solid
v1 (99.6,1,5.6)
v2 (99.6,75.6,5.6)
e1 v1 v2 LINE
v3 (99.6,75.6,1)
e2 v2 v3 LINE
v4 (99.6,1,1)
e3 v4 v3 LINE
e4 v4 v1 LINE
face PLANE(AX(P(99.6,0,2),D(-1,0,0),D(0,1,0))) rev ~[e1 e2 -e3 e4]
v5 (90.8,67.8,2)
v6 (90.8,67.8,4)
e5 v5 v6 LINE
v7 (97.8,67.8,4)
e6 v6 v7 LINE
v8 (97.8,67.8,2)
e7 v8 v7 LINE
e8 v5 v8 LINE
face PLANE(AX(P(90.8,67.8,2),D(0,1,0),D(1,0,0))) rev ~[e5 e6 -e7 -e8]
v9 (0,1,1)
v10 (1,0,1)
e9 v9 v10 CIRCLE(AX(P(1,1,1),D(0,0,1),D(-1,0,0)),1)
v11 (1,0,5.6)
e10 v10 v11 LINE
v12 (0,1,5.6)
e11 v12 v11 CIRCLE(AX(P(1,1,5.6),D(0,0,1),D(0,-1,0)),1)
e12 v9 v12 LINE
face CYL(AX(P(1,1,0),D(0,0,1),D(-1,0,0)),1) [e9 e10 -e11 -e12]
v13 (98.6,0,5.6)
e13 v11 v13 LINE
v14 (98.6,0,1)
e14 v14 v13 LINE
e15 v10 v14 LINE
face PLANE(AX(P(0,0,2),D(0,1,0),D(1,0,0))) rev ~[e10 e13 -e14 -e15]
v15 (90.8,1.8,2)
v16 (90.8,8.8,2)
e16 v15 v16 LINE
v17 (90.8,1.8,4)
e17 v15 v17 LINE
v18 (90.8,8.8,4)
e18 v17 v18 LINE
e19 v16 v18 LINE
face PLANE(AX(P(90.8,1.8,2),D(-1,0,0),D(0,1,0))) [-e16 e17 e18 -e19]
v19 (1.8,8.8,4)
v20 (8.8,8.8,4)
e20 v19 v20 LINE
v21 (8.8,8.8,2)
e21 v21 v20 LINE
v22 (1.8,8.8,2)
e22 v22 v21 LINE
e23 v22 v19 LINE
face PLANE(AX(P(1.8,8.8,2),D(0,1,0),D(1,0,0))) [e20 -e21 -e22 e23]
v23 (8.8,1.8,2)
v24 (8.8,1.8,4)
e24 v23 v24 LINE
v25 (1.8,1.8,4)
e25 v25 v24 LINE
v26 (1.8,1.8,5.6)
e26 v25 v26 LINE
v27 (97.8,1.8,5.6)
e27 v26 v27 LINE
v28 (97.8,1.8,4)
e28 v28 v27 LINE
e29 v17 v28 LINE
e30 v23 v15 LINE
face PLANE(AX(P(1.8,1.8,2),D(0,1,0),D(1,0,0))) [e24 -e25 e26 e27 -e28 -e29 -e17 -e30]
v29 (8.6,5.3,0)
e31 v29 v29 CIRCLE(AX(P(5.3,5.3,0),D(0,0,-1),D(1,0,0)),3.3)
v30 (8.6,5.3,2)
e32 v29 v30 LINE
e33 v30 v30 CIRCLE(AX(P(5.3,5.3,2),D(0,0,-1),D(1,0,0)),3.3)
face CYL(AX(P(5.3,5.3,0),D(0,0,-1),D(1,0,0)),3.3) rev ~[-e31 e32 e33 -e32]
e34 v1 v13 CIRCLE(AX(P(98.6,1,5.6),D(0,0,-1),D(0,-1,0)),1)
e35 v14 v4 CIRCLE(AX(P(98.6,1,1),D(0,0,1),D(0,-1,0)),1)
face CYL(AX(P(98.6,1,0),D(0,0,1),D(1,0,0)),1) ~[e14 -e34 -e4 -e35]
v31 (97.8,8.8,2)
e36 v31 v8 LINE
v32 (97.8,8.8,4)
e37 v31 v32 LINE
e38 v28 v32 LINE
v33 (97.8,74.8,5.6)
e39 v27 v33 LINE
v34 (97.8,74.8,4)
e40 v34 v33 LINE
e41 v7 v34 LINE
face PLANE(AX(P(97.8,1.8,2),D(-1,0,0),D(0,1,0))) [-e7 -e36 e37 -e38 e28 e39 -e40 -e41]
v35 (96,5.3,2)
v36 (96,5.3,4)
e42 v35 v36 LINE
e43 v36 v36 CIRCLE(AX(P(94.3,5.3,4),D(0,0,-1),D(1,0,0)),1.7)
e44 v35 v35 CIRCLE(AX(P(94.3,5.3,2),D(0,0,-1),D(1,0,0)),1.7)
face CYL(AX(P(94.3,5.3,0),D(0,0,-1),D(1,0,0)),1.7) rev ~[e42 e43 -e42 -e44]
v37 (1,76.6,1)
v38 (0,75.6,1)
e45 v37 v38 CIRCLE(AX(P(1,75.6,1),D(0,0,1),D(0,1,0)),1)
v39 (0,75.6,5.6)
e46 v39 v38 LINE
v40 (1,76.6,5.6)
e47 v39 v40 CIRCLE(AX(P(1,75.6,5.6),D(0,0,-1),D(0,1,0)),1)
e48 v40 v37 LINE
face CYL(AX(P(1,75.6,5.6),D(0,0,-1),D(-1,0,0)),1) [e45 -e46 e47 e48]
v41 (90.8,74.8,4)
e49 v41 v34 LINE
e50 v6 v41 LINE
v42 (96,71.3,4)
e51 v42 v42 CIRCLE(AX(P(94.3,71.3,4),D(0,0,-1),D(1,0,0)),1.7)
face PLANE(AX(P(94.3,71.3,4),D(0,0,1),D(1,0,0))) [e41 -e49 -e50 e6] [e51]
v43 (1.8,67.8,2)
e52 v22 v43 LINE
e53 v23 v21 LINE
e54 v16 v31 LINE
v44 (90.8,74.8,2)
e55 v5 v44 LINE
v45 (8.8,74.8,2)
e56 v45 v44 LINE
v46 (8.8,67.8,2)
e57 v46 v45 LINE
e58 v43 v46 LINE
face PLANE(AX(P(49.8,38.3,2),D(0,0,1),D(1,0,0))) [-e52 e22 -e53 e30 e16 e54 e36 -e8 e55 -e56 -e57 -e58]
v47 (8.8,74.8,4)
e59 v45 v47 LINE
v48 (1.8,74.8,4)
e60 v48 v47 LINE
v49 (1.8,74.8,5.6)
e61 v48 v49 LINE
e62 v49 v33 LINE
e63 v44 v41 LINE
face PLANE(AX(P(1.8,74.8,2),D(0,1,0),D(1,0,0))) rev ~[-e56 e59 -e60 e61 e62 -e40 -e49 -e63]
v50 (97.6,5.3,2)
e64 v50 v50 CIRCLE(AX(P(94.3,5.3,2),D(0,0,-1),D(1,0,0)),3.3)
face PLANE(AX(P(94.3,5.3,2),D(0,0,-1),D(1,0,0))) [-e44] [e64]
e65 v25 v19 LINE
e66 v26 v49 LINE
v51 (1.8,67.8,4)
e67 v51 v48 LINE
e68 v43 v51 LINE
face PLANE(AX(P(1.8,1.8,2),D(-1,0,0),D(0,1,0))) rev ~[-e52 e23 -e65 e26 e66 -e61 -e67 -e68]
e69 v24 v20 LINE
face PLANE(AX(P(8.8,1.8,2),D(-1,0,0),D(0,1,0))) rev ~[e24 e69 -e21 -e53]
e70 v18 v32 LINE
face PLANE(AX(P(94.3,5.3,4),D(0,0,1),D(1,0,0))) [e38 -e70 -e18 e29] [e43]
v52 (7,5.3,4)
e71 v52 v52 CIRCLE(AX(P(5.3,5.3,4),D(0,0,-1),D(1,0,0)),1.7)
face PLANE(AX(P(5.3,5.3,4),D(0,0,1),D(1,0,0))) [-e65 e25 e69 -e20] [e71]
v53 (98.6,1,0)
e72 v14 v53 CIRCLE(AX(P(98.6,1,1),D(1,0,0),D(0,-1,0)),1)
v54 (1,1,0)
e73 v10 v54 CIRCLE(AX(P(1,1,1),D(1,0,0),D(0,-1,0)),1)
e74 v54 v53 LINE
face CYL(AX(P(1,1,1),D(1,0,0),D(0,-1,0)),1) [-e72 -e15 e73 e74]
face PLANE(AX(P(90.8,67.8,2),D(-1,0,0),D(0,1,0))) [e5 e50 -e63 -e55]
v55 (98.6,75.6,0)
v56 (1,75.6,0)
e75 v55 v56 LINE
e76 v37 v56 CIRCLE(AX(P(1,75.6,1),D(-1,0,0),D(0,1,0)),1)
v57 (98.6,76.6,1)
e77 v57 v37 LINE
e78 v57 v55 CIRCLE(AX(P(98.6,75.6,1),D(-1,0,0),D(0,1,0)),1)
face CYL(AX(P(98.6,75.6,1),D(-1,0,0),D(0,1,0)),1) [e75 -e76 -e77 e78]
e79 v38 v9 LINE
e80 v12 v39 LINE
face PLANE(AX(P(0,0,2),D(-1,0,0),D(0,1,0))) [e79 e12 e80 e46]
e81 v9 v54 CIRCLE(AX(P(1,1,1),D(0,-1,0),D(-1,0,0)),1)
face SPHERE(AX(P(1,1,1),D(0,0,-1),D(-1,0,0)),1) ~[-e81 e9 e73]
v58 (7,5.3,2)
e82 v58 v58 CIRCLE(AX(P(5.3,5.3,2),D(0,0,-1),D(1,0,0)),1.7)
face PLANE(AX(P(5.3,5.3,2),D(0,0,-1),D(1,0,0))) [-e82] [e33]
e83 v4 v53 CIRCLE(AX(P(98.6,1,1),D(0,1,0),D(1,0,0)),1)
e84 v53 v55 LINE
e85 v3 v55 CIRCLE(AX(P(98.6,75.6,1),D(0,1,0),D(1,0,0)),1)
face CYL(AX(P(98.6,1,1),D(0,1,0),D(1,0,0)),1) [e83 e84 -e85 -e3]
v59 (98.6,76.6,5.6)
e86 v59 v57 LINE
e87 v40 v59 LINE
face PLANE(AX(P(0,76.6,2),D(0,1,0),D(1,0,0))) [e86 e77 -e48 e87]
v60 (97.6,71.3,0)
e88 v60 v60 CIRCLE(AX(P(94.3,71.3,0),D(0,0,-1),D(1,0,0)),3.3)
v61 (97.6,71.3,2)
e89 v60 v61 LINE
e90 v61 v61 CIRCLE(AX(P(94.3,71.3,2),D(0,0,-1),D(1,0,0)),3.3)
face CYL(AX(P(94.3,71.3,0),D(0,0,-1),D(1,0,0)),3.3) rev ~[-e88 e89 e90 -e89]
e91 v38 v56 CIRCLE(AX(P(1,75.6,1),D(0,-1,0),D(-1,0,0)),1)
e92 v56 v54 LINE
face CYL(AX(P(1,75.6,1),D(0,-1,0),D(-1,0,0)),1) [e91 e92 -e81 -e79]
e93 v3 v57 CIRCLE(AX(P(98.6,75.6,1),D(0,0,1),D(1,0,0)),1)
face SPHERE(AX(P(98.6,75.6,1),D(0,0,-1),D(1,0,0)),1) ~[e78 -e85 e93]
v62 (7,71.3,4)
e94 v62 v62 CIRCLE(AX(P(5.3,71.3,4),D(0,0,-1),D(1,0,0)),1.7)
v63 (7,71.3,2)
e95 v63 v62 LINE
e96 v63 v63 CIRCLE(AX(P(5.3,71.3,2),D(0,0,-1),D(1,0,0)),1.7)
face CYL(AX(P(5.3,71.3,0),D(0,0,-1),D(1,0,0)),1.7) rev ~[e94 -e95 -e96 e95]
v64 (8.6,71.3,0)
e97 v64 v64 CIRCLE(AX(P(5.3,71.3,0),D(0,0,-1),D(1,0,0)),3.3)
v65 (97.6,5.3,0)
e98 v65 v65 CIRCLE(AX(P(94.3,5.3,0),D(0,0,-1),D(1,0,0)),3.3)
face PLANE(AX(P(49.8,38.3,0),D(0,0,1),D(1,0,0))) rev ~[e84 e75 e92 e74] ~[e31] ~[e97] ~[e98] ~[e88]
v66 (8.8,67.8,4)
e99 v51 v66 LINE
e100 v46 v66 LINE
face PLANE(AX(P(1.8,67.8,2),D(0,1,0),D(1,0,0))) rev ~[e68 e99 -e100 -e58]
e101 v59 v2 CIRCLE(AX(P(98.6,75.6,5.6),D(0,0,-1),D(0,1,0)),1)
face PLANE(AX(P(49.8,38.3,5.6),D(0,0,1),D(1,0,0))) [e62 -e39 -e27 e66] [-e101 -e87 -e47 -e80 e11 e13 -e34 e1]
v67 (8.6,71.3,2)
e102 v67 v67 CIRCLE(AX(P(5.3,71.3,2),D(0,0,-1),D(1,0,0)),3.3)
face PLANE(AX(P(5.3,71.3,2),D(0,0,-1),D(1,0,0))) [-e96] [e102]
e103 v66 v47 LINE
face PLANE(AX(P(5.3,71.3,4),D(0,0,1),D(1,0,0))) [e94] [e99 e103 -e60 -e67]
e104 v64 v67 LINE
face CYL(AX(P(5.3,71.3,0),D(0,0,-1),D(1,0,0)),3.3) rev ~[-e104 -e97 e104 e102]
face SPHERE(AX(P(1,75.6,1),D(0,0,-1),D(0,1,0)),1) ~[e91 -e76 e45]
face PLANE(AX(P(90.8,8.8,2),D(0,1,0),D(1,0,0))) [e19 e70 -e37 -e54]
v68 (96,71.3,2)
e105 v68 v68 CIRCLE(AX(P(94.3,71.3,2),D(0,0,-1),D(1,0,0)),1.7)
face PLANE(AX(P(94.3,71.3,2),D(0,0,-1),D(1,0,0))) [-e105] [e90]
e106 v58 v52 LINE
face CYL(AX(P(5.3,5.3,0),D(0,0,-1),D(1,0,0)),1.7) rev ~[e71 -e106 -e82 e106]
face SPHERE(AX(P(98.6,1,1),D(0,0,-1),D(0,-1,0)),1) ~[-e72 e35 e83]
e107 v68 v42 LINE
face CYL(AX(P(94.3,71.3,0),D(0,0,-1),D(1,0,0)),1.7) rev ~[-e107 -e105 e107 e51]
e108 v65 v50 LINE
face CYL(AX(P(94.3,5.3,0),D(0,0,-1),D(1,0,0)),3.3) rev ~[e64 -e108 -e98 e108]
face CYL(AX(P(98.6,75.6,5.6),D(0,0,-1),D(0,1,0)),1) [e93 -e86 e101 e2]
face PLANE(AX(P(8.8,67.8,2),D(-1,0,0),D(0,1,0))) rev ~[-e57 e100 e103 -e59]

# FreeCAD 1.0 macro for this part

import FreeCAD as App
import Part
import Sketcher
from FreeCAD import Vector
Q = App.Units.Quantity


def edges_at(feature, points):
    """Names of the edges that pass closest to the given points."""
    edges = feature.Shape.Edges
    near = lambda p: min(range(len(edges)), key=lambda i: edges[i].distToShape(Part.Vertex(*p))[0])
    return sorted({f"Edge{near(p) + 1}" for p in points})

doc = App.newDocument("Part")
body = doc.addObject("PartDesign::Body", "Body")

sketch1 = doc.addObject("Sketcher::SketchObject", "Sketch")
body.addObject(sketch1)
sketch1.AttachmentSupport = (doc.XY_Plane, [""])
sketch1.MapMode = "FlatFace"
sketch1.addGeometry([
    Part.LineSegment(Vector(0, 76.6, 0), Vector(0, 0, 0)),
    Part.LineSegment(Vector(0, 0, 0), Vector(99.6, 0, 0)),
    Part.LineSegment(Vector(99.6, 0, 0), Vector(99.6, 76.6, 0)),
    Part.LineSegment(Vector(99.6, 76.6, 0), Vector(0, 76.6, 0)),
], False)
sketch1.addConstraint([
    Sketcher.Constraint("Coincident", 0, 2, 1, 1),
    Sketcher.Constraint("Coincident", 1, 2, 2, 1),
    Sketcher.Constraint("Coincident", 2, 2, 3, 1),
    Sketcher.Constraint("Coincident", 3, 2, 0, 1),
    Sketcher.Constraint("Vertical", 0),
    Sketcher.Constraint("Horizontal", 1),
    Sketcher.Constraint("Vertical", 2),
    Sketcher.Constraint("Horizontal", 3),
    Sketcher.Constraint("Coincident", 0, 2, -1, 1),
    Sketcher.Constraint("DistanceX", 1, 1, 1, 2, Q("99.6 mm")),
    Sketcher.Constraint("DistanceY", 0, 2, 0, 1, Q("76.6 mm")),
])
pad1 = doc.addObject("PartDesign::Pad", "Pad")
body.addObject(pad1)
pad1.Profile = sketch1
pad1.Length = 2

sketch2 = doc.addObject("Sketcher::SketchObject", "Sketch001")
body.addObject(sketch2)
sketch2.AttachmentSupport = (doc.XY_Plane, [""])
sketch2.MapMode = "FlatFace"
sketch2.AttachmentOffset = App.Placement(Vector(0, 0, 2), App.Rotation())
sketch2.addGeometry([
    Part.LineSegment(Vector(0, 76.6, 0), Vector(0, 0, 0)),
    Part.LineSegment(Vector(0, 0, 0), Vector(99.6, 0, 0)),
    Part.LineSegment(Vector(99.6, 0, 0), Vector(99.6, 76.6, 0)),
    Part.LineSegment(Vector(99.6, 76.6, 0), Vector(0, 76.6, 0)),
    Part.LineSegment(Vector(97.8, 1.8, 0), Vector(1.8, 1.8, 0)),
    Part.LineSegment(Vector(1.8, 1.8, 0), Vector(1.8, 74.8, 0)),
    Part.LineSegment(Vector(1.8, 74.8, 0), Vector(97.8, 74.8, 0)),
    Part.LineSegment(Vector(97.8, 74.8, 0), Vector(97.8, 1.8, 0)),
], False)
sketch2.addConstraint([
    Sketcher.Constraint("Coincident", 0, 2, 1, 1),
    Sketcher.Constraint("Coincident", 1, 2, 2, 1),
    Sketcher.Constraint("Coincident", 2, 2, 3, 1),
    Sketcher.Constraint("Coincident", 3, 2, 0, 1),
    Sketcher.Constraint("Coincident", 4, 2, 5, 1),
    Sketcher.Constraint("Coincident", 5, 2, 6, 1),
    Sketcher.Constraint("Coincident", 6, 2, 7, 1),
    Sketcher.Constraint("Coincident", 7, 2, 4, 1),
    Sketcher.Constraint("Vertical", 0),
    Sketcher.Constraint("Horizontal", 1),
    Sketcher.Constraint("Vertical", 2),
    Sketcher.Constraint("Horizontal", 3),
    Sketcher.Constraint("Horizontal", 4),
    Sketcher.Constraint("Vertical", 5),
    Sketcher.Constraint("Horizontal", 6),
    Sketcher.Constraint("Vertical", 7),
    Sketcher.Constraint("Coincident", 0, 2, -1, 1),
    Sketcher.Constraint("DistanceX", 4, 2, 4, 1, Q("96 mm")),
    Sketcher.Constraint("DistanceY", 5, 1, 5, 2, Q("73 mm")),
    Sketcher.Constraint("DistanceX", 1, 1, 1, 2, Q("99.6 mm")),
    Sketcher.Constraint("DistanceY", 0, 2, 0, 1, Q("76.6 mm")),
    Sketcher.Constraint("DistanceX", -1, 1, 4, 2, Q("1.8 mm")),
    Sketcher.Constraint("DistanceY", -1, 1, 4, 2, Q("1.8 mm")),
])
pad2 = doc.addObject("PartDesign::Pad", "Pad001")
body.addObject(pad2)
pad2.Profile = sketch2
pad2.Length = 3.6

sketch3 = doc.addObject("Sketcher::SketchObject", "Sketch002")
body.addObject(sketch3)
sketch3.AttachmentSupport = (doc.XY_Plane, [""])
sketch3.MapMode = "FlatFace"
sketch3.AttachmentOffset = App.Placement(Vector(0, 0, 2), App.Rotation())
sketch3.addGeometry([
    Part.LineSegment(Vector(1.8, 8.8, 0), Vector(1.8, 1.8, 0)),
    Part.LineSegment(Vector(1.8, 1.8, 0), Vector(8.8, 1.8, 0)),
    Part.LineSegment(Vector(8.8, 1.8, 0), Vector(8.8, 8.8, 0)),
    Part.LineSegment(Vector(8.8, 8.8, 0), Vector(1.8, 8.8, 0)),
    Part.LineSegment(Vector(1.8, 74.8, 0), Vector(1.8, 67.8, 0)),
    Part.LineSegment(Vector(1.8, 67.8, 0), Vector(8.8, 67.8, 0)),
    Part.LineSegment(Vector(8.8, 67.8, 0), Vector(8.8, 74.8, 0)),
    Part.LineSegment(Vector(8.8, 74.8, 0), Vector(1.8, 74.8, 0)),
    Part.LineSegment(Vector(90.8, 74.8, 0), Vector(90.8, 67.8, 0)),
    Part.LineSegment(Vector(90.8, 67.8, 0), Vector(97.8, 67.8, 0)),
    Part.LineSegment(Vector(97.8, 67.8, 0), Vector(97.8, 74.8, 0)),
    Part.LineSegment(Vector(97.8, 74.8, 0), Vector(90.8, 74.8, 0)),
    Part.LineSegment(Vector(90.8, 8.8, 0), Vector(90.8, 1.8, 0)),
    Part.LineSegment(Vector(90.8, 1.8, 0), Vector(97.8, 1.8, 0)),
    Part.LineSegment(Vector(97.8, 1.8, 0), Vector(97.8, 8.8, 0)),
    Part.LineSegment(Vector(97.8, 8.8, 0), Vector(90.8, 8.8, 0)),
], False)
sketch3.addConstraint([
    Sketcher.Constraint("Coincident", 0, 2, 1, 1),
    Sketcher.Constraint("Coincident", 1, 2, 2, 1),
    Sketcher.Constraint("Coincident", 2, 2, 3, 1),
    Sketcher.Constraint("Coincident", 3, 2, 0, 1),
    Sketcher.Constraint("Coincident", 4, 2, 5, 1),
    Sketcher.Constraint("Coincident", 5, 2, 6, 1),
    Sketcher.Constraint("Coincident", 6, 2, 7, 1),
    Sketcher.Constraint("Coincident", 7, 2, 4, 1),
    Sketcher.Constraint("Coincident", 8, 2, 9, 1),
    Sketcher.Constraint("Coincident", 9, 2, 10, 1),
    Sketcher.Constraint("Coincident", 10, 2, 11, 1),
    Sketcher.Constraint("Coincident", 11, 2, 8, 1),
    Sketcher.Constraint("Coincident", 12, 2, 13, 1),
    Sketcher.Constraint("Coincident", 13, 2, 14, 1),
    Sketcher.Constraint("Coincident", 14, 2, 15, 1),
    Sketcher.Constraint("Coincident", 15, 2, 12, 1),
    Sketcher.Constraint("Vertical", 0),
    Sketcher.Constraint("Horizontal", 1),
    Sketcher.Constraint("Vertical", 2),
    Sketcher.Constraint("Horizontal", 3),
    Sketcher.Constraint("Vertical", 4),
    Sketcher.Constraint("Horizontal", 5),
    Sketcher.Constraint("Vertical", 6),
    Sketcher.Constraint("Horizontal", 7),
    Sketcher.Constraint("Vertical", 8),
    Sketcher.Constraint("Horizontal", 9),
    Sketcher.Constraint("Vertical", 10),
    Sketcher.Constraint("Horizontal", 11),
    Sketcher.Constraint("Vertical", 12),
    Sketcher.Constraint("Horizontal", 13),
    Sketcher.Constraint("Vertical", 14),
    Sketcher.Constraint("Horizontal", 15),
    Sketcher.Constraint("Horizontal", 5, 2, 8, 2),
    Sketcher.Constraint("Horizontal", 7, 2, 10, 2),
    Sketcher.Constraint("Horizontal", 1, 2, 12, 2),
    Sketcher.Constraint("Horizontal", 3, 2, 14, 2),
    Sketcher.Constraint("Vertical", 3, 2, 4, 2),
    Sketcher.Constraint("Vertical", 2, 2, 5, 2),
    Sketcher.Constraint("Vertical", 11, 2, 12, 2),
    Sketcher.Constraint("Vertical", 10, 2, 13, 2),
    Sketcher.Constraint("Equal", 7, 9),
    Sketcher.Constraint("Equal", 15, 0),
    Sketcher.Constraint("Equal", 2, 4),
    Sketcher.Constraint("DistanceX", 1, 1, 1, 2, Q("7 mm")),
    Sketcher.Constraint("DistanceY", 3, 2, 4, 2, Q("59 mm")),
    Sketcher.Constraint("DistanceX", 5, 2, 8, 2, Q("82 mm")),
    Sketcher.Constraint("DistanceX", -1, 1, 0, 2, Q("1.8 mm")),
    Sketcher.Constraint("DistanceY", -1, 1, 0, 2, Q("1.8 mm")),
])
pad3 = doc.addObject("PartDesign::Pad", "Pad002")
body.addObject(pad3)
pad3.Profile = sketch3
pad3.Length = 2

sketch4 = doc.addObject("Sketcher::SketchObject", "Sketch003")
body.addObject(sketch4)
sketch4.AttachmentSupport = (doc.XY_Plane, [""])
sketch4.MapMode = "FlatFace"
sketch4.addGeometry([
    Part.Circle(Vector(5.3, 5.3, 0), Vector(0, 0, 1), 3.3),
    Part.Circle(Vector(94.3, 5.3, 0), Vector(0, 0, 1), 3.3),
    Part.Circle(Vector(5.3, 71.3, 0), Vector(0, 0, 1), 3.3),
    Part.Circle(Vector(94.3, 71.3, 0), Vector(0, 0, 1), 3.3),
], False)
sketch4.addConstraint([
    Sketcher.Constraint("Equal", 0, 1),
    Sketcher.Constraint("Equal", 1, 2),
    Sketcher.Constraint("Equal", 2, 3),
    Sketcher.Constraint("Horizontal", 0, 3, 1, 3),
    Sketcher.Constraint("Horizontal", 2, 3, 3, 3),
    Sketcher.Constraint("Vertical", 0, 3, 2, 3),
    Sketcher.Constraint("Vertical", 1, 3, 3, 3),
    Sketcher.Constraint("Diameter", 0, Q("6.6 mm")),
    Sketcher.Constraint("DistanceX", 0, 3, 1, 3, Q("89 mm")),
    Sketcher.Constraint("DistanceY", 0, 3, 2, 3, Q("66 mm")),
    Sketcher.Constraint("DistanceX", -1, 1, 0, 3, Q("5.3 mm")),
    Sketcher.Constraint("DistanceY", -1, 1, 0, 3, Q("5.3 mm")),
])
pocket1 = doc.addObject("PartDesign::Pocket", "Pocket")
body.addObject(pocket1)
pocket1.Profile = sketch4
pocket1.Length = 2
pocket1.Reversed = True

sketch5 = doc.addObject("Sketcher::SketchObject", "Sketch004")
body.addObject(sketch5)
sketch5.AttachmentSupport = (doc.XY_Plane, [""])
sketch5.MapMode = "FlatFace"
sketch5.addGeometry([
    Part.Circle(Vector(5.3, 5.3, 0), Vector(0, 0, 1), 1.7),
    Part.Circle(Vector(5.3, 71.3, 0), Vector(0, 0, 1), 1.7),
    Part.Circle(Vector(94.3, 71.3, 0), Vector(0, 0, 1), 1.7),
    Part.Circle(Vector(94.3, 5.3, 0), Vector(0, 0, 1), 1.7),
], False)
sketch5.addConstraint([
    Sketcher.Constraint("Equal", 0, 1),
    Sketcher.Constraint("Equal", 1, 2),
    Sketcher.Constraint("Equal", 2, 3),
    Sketcher.Constraint("Horizontal", 1, 3, 2, 3),
    Sketcher.Constraint("Horizontal", 0, 3, 3, 3),
    Sketcher.Constraint("Vertical", 0, 3, 1, 3),
    Sketcher.Constraint("Vertical", 2, 3, 3, 3),
    Sketcher.Constraint("Diameter", 0, Q("3.4 mm")),
    Sketcher.Constraint("DistanceY", 0, 3, 1, 3, Q("66 mm")),
    Sketcher.Constraint("DistanceX", 1, 3, 2, 3, Q("89 mm")),
    Sketcher.Constraint("DistanceX", -1, 1, 0, 3, Q("5.3 mm")),
    Sketcher.Constraint("DistanceY", -1, 1, 0, 3, Q("5.3 mm")),
])
pocket2 = doc.addObject("PartDesign::Pocket", "Pocket001")
body.addObject(pocket2)
pocket2.Profile = sketch5
pocket2.Length = 5
pocket2.Reversed = True
doc.recompute()

fillet = doc.addObject("PartDesign::Fillet", "Fillet")
body.addObject(fillet)
fillet.Base = (pocket2, edges_at(pocket2, [(0, 76.6, 2.8)]))
fillet.Radius = 1
doc.recompute()

fillet2 = doc.addObject("PartDesign::Fillet", "Fillet001")
body.addObject(fillet2)
fillet2.Base = (fillet, edges_at(fillet, [(0, 0, 2.8)]))
fillet2.Radius = 1
doc.recompute()

fillet3 = doc.addObject("PartDesign::Fillet", "Fillet002")
body.addObject(fillet3)
fillet3.Base = (fillet2, edges_at(fillet2, [(99.6, 76.6, 2.8)]))
fillet3.Radius = 1
doc.recompute()

fillet4 = doc.addObject("PartDesign::Fillet", "Fillet003")
body.addObject(fillet4)
fillet4.Base = (fillet3, edges_at(fillet3, [(99.6, 0, 2.8)]))
fillet4.Radius = 1
doc.recompute()

fillet5 = doc.addObject("PartDesign::Fillet", "Fillet004")
body.addObject(fillet5)
fillet5.Base = (fillet4, edges_at(fillet4, [(49.8, 0, 0)]))
fillet5.Radius = 1

doc.recompute()
